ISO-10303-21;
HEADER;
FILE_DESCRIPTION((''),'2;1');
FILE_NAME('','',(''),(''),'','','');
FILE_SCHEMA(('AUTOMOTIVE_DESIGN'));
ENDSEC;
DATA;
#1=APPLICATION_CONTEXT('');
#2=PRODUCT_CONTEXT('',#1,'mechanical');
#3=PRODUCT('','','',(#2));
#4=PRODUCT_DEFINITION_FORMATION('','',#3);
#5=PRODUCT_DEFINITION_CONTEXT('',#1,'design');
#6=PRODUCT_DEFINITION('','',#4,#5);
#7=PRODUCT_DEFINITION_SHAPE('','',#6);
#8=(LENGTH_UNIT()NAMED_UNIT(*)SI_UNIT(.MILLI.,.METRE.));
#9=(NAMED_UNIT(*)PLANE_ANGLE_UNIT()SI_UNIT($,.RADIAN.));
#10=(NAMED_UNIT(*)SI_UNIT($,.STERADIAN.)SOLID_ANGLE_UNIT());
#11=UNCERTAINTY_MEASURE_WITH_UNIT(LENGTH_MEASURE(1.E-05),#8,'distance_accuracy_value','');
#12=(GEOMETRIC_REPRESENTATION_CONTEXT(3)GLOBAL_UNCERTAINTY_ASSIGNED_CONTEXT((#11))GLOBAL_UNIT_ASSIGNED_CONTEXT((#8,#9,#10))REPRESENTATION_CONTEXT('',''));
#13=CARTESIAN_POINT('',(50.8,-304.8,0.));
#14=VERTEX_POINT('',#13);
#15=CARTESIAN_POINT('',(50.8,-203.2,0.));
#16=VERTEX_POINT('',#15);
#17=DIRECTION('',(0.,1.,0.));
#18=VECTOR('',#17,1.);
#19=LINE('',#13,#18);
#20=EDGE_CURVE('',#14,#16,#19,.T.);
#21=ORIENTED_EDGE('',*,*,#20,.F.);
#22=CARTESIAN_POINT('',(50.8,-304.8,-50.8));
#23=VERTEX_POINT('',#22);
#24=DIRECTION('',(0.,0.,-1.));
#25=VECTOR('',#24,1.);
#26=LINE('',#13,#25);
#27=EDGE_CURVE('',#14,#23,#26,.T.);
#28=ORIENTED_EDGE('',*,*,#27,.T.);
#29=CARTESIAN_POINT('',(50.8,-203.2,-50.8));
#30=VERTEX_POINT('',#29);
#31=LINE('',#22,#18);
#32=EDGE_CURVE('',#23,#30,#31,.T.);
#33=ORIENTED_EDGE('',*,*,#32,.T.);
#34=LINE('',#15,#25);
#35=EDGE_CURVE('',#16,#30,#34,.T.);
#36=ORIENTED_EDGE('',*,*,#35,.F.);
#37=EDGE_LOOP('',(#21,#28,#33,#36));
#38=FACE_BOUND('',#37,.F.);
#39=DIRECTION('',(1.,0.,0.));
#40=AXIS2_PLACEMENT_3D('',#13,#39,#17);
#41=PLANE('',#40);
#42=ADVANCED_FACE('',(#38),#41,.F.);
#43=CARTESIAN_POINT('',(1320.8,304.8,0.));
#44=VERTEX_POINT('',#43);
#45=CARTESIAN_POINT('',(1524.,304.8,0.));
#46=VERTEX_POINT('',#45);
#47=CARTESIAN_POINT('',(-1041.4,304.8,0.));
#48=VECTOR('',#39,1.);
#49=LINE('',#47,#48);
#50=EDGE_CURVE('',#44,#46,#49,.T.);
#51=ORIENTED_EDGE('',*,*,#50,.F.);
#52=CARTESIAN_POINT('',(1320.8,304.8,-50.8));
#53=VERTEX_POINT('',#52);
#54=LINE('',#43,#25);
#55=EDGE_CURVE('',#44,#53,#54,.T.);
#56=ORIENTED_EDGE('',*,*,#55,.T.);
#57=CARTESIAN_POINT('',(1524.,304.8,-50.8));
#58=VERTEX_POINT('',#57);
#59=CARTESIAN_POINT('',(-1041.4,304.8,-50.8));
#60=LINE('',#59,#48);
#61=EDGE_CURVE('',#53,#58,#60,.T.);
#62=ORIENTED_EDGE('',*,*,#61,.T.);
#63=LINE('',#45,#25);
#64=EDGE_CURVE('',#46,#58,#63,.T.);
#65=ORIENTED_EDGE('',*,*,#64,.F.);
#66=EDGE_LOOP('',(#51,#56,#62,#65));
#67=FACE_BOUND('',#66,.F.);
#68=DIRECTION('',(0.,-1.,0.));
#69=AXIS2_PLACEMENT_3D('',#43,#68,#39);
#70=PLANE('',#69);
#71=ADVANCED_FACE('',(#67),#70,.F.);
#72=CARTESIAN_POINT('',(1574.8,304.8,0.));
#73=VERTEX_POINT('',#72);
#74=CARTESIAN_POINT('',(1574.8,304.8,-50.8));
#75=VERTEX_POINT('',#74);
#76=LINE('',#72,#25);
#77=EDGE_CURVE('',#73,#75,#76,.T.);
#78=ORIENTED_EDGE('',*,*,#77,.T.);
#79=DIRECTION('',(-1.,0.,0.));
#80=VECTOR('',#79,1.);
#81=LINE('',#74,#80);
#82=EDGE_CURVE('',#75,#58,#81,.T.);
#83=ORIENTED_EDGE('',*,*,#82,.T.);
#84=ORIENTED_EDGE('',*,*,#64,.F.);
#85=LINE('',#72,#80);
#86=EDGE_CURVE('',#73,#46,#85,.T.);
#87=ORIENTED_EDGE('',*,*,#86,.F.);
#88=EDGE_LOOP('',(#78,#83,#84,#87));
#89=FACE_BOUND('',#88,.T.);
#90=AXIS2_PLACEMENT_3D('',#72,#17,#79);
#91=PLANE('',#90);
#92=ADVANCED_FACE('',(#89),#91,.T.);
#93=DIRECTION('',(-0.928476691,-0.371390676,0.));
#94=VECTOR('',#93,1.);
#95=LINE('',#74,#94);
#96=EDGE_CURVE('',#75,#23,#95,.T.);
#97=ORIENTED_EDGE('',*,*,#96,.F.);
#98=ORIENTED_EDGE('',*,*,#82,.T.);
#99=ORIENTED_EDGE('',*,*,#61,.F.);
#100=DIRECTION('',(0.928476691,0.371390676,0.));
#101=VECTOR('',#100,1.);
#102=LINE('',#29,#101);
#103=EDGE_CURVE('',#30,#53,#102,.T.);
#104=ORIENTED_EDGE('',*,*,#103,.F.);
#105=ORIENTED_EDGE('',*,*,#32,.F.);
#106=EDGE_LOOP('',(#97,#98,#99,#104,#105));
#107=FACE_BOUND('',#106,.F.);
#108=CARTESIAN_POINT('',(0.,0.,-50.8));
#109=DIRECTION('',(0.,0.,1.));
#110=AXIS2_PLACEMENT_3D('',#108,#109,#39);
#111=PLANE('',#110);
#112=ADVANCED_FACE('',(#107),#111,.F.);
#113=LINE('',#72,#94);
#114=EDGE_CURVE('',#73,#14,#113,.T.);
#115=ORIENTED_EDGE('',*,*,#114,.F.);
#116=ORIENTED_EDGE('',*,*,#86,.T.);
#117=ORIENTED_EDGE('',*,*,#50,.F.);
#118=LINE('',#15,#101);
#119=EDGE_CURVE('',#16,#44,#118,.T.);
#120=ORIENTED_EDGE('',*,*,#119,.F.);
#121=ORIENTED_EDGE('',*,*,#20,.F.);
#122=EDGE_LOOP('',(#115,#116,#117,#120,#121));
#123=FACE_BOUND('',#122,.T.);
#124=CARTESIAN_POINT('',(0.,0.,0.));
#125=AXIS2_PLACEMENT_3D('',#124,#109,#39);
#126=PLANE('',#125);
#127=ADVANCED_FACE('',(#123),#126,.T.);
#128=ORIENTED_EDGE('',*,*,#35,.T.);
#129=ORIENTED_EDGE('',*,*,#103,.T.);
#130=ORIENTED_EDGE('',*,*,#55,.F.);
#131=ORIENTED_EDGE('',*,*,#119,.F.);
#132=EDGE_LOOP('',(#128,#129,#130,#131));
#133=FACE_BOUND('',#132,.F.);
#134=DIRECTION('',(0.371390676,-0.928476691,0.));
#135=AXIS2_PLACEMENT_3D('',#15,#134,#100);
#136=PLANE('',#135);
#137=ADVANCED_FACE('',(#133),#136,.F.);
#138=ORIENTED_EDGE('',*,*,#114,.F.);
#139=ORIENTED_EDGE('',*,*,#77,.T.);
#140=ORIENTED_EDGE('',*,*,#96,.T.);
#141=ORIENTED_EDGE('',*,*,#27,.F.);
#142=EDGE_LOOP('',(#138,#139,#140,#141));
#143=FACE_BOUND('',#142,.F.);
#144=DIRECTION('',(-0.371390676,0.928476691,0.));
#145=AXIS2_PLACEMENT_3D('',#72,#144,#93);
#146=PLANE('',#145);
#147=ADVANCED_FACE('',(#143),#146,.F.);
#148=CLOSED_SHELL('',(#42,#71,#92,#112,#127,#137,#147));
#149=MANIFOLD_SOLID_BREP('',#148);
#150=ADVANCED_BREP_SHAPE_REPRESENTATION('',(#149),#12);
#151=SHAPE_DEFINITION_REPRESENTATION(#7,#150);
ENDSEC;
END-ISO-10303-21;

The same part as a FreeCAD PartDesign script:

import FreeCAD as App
import Part
import Sketcher
from FreeCAD import Vector
Q = App.Units.Quantity

doc = App.newDocument("Part")
body = doc.addObject("PartDesign::Body", "Body")

sketch1 = body.newObject("Sketcher::SketchObject", "Sketch")
sketch1.AttachmentSupport = (doc.getObject("XY_Plane"), [""])
sketch1.MapMode = "FlatFace"
sketch1.addGeometry(Part.LineSegment(Vector(1321, 305, 0), Vector(51, -203, 0)), False)
sketch1.addGeometry(Part.LineSegment(Vector(51, -203, 0), Vector(51, -305, 0)), False)
sketch1.addGeometry(Part.LineSegment(Vector(51, -305, 0), Vector(1575, 305, 0)), False)
sketch1.addGeometry(Part.LineSegment(Vector(1575, 305, 0), Vector(1321, 305, 0)), False)
sketch1.addConstraint(Sketcher.Constraint("Coincident", 0, 2, 1, 1))
sketch1.addConstraint(Sketcher.Constraint("Coincident", 1, 2, 2, 1))
sketch1.addConstraint(Sketcher.Constraint("Coincident", 2, 2, 3, 1))
sketch1.addConstraint(Sketcher.Constraint("Coincident", 3, 2, 0, 1))
sketch1.addConstraint(Sketcher.Constraint("Vertical", 1))
sketch1.addConstraint(Sketcher.Constraint("Horizontal", 3))
sketch1.addConstraint(Sketcher.Constraint("Parallel", 0, 2))
sketch1.addConstraint(Sketcher.Constraint("DistanceY", 1, 2, 1, 1, Q("4 in")))
sketch1.addConstraint(Sketcher.Constraint("DistanceX", 3, 2, 3, 1, Q("10 in")))
sketch1.addConstraint(Sketcher.Constraint("DistanceX", -1, 1, 0, 2, Q("2 in")))
sketch1.addConstraint(Sketcher.Constraint("DistanceY", 0, 2, -1, 1, Q("8 in")))
sketch1.addConstraint(Sketcher.Constraint("DistanceX", -1, 1, 2, 2, Q("62 in")))
pad1 = body.newObject("PartDesign::Pad", "Pad")
pad1.Profile = sketch1
pad1.Length = Q("2 in")
pad1.Reversed = True

doc.recompute()
